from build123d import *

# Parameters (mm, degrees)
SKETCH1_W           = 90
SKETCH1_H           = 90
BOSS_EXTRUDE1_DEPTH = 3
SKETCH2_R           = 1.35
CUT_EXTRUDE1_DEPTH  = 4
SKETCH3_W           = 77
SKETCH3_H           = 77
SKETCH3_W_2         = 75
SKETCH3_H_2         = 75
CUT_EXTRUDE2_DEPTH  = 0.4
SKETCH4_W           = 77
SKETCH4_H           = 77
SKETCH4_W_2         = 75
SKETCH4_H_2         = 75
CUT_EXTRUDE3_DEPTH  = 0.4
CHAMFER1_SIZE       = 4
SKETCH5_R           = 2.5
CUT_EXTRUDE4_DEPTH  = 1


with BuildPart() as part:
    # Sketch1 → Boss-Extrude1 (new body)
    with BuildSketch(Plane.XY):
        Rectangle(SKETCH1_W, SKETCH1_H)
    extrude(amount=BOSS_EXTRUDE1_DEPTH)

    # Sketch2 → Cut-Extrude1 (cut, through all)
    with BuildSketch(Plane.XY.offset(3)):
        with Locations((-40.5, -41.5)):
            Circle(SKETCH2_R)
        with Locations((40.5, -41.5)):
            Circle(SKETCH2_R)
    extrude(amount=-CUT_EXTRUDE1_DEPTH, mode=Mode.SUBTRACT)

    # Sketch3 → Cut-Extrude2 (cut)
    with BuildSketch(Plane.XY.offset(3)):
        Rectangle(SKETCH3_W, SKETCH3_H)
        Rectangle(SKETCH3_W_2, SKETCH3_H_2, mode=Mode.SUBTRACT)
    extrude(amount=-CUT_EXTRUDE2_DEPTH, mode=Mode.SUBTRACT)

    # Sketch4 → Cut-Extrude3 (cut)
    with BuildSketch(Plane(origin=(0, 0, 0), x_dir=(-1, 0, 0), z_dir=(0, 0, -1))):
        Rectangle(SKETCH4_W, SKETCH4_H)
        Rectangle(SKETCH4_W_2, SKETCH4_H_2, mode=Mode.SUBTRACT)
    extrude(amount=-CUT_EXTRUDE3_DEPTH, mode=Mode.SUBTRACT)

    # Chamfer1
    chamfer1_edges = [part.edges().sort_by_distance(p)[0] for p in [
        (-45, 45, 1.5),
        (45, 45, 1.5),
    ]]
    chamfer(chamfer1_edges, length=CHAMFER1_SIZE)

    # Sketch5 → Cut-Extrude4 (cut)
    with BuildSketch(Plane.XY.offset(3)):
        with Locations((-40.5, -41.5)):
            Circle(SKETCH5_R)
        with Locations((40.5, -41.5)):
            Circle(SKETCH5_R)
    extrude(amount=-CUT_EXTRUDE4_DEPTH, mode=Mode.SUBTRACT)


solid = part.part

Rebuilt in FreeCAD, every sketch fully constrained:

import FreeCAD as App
import Part
import Sketcher
from FreeCAD import Vector
Q = App.Units.Quantity


def edges_at(feature, points):
    """Names of the edges that pass closest to the given points."""
    edges = feature.Shape.Edges
    near = lambda p: min(range(len(edges)), key=lambda i: edges[i].distToShape(Part.Vertex(*p))[0])
    return sorted({f"Edge{near(p) + 1}" for p in points})

doc = App.newDocument("Part")
body = doc.addObject("PartDesign::Body", "Body")

# Sketch on XY plane
sketch1 = body.newObject("Sketcher::SketchObject", "Sketch")
sketch1.AttachmentSupport = (doc.getObject("XY_Plane"), [""])
sketch1.MapMode = "FlatFace"
sketch1.addGeometry([
    Part.LineSegment(Vector(-45, 45, 0), Vector(-45, -45, 0)),
    Part.LineSegment(Vector(-45, -45, 0), Vector(45, -45, 0)),
    Part.LineSegment(Vector(45, -45, 0), Vector(45, 45, 0)),
    Part.LineSegment(Vector(45, 45, 0), Vector(-45, 45, 0)),
], False)
sketch1.addConstraint([
    Sketcher.Constraint("Coincident", 0, 2, 1, 1),
    Sketcher.Constraint("Coincident", 1, 2, 2, 1),
    Sketcher.Constraint("Coincident", 2, 2, 3, 1),
    Sketcher.Constraint("Coincident", 3, 2, 0, 1),
    Sketcher.Constraint("Vertical", 0),
    Sketcher.Constraint("Horizontal", 1),
    Sketcher.Constraint("Vertical", 2),
    Sketcher.Constraint("Horizontal", 3),
    Sketcher.Constraint("Symmetric", 0, 2, 2, 2, -1, 1),
    Sketcher.Constraint("Equal", 3, 0),
    Sketcher.Constraint("DistanceX", 1, 1, 1, 2, Q("90 mm")),
])
pad1 = body.newObject("PartDesign::Pad", "Pad")
pad1.Profile = sketch1
pad1.Length = 3

# Sketch on XY plane
sketch2 = body.newObject("Sketcher::SketchObject", "Sketch001")
sketch2.AttachmentSupport = (doc.getObject("XY_Plane"), [""])
sketch2.MapMode = "FlatFace"
sketch2.AttachmentOffset = App.Placement(Vector(0, 0, 3), App.Rotation())
sketch2.addGeometry([
    Part.Circle(Vector(-40.5, -41.5, 0), Vector(0, 0, 1), 1.4),
    Part.Circle(Vector(40.5, -41.5, 0), Vector(0, 0, 1), 1.4),
], False)
sketch2.addConstraint([
    Sketcher.Constraint("Equal", 0, 1),
    Sketcher.Constraint("Symmetric", 0, 3, 1, 3, -2),
    Sketcher.Constraint("Diameter", 0, Q("2.7 mm")),
    Sketcher.Constraint("DistanceX", 0, 3, 1, 3, Q("81 mm")),
    Sketcher.Constraint("DistanceY", 0, 3, -1, 1, Q("41.5 mm")),
])
pocket1 = body.newObject("PartDesign::Pocket", "Pocket")
pocket1.Profile = sketch2
pocket1.Type = "ThroughAll"

# Sketch on XY plane
sketch3 = body.newObject("Sketcher::SketchObject", "Sketch002")
sketch3.AttachmentSupport = (doc.getObject("XY_Plane"), [""])
sketch3.MapMode = "FlatFace"
sketch3.AttachmentOffset = App.Placement(Vector(0, 0, 3), App.Rotation())
sketch3.addGeometry([
    Part.LineSegment(Vector(-38, 38, 0), Vector(-38, -38, 0)),  # 0
    Part.LineSegment(Vector(-38, -38, 0), Vector(38, -38, 0)),  # 1
    Part.LineSegment(Vector(38, -38, 0), Vector(38, 38, 0)),  # 2
    Part.LineSegment(Vector(38, 38, 0), Vector(-38, 38, 0)),  # 3
    Part.LineSegment(Vector(38, -38, 0), Vector(-38, -38, 0)),  # 4
    Part.LineSegment(Vector(-38, -38, 0), Vector(-38, 38, 0)),  # 5
    Part.LineSegment(Vector(-38, 38, 0), Vector(38, 38, 0)),  # 6
    Part.LineSegment(Vector(38, 38, 0), Vector(38, -38, 0)),  # 7
], False)
sketch3.addConstraint([
    Sketcher.Constraint("Coincident", 0, 2, 1, 1),
    Sketcher.Constraint("Coincident", 1, 2, 2, 1),
    Sketcher.Constraint("Coincident", 2, 2, 3, 1),
    Sketcher.Constraint("Coincident", 3, 2, 0, 1),
    Sketcher.Constraint("Coincident", 4, 2, 5, 1),
    Sketcher.Constraint("Coincident", 5, 2, 6, 1),
    Sketcher.Constraint("Coincident", 6, 2, 7, 1),
    Sketcher.Constraint("Coincident", 7, 2, 4, 1),
    Sketcher.Constraint("Vertical", 0),
    Sketcher.Constraint("Horizontal", 1),
    Sketcher.Constraint("Vertical", 2),
    Sketcher.Constraint("Horizontal", 3),
    Sketcher.Constraint("Horizontal", 4),
    Sketcher.Constraint("Vertical", 5),
    Sketcher.Constraint("Horizontal", 6),
    Sketcher.Constraint("Vertical", 7),
    Sketcher.Constraint("Symmetric", 0, 2, 2, 2, -1, 1),
    Sketcher.Constraint("Symmetric", 4, 2, 6, 2, -1, 1),
    Sketcher.Constraint("Equal", 3, 0),
    Sketcher.Constraint("Equal", 6, 5),
    Sketcher.Constraint("DistanceX", 1, 1, 1, 2, Q("77 mm")),
    Sketcher.Constraint("DistanceX", 4, 2, 4, 1, Q("75 mm")),
])
pocket2 = body.newObject("PartDesign::Pocket", "Pocket001")
pocket2.Profile = sketch3
pocket2.Length = 0.4

# Sketch on XY plane
sketch4 = body.newObject("Sketcher::SketchObject", "Sketch003")
sketch4.AttachmentSupport = (doc.getObject("XY_Plane"), [""])
sketch4.MapMode = "FlatFace"
sketch4.addGeometry([
    Part.LineSegment(Vector(38, 38, 0), Vector(38, -38, 0)),  # 0
    Part.LineSegment(Vector(38, -38, 0), Vector(-38, -38, 0)),  # 1
    Part.LineSegment(Vector(-38, -38, 0), Vector(-38, 38, 0)),  # 2
    Part.LineSegment(Vector(-38, 38, 0), Vector(38, 38, 0)),  # 3
    Part.LineSegment(Vector(-38, -38, 0), Vector(38, -38, 0)),  # 4
    Part.LineSegment(Vector(38, -38, 0), Vector(38, 38, 0)),  # 5
    Part.LineSegment(Vector(38, 38, 0), Vector(-38, 38, 0)),  # 6
    Part.LineSegment(Vector(-38, 38, 0), Vector(-38, -38, 0)),  # 7
], False)
sketch4.addConstraint([
    Sketcher.Constraint("Coincident", 0, 2, 1, 1),
    Sketcher.Constraint("Coincident", 1, 2, 2, 1),
    Sketcher.Constraint("Coincident", 2, 2, 3, 1),
    Sketcher.Constraint("Coincident", 3, 2, 0, 1),
    Sketcher.Constraint("Coincident", 4, 2, 5, 1),
    Sketcher.Constraint("Coincident", 5, 2, 6, 1),
    Sketcher.Constraint("Coincident", 6, 2, 7, 1),
    Sketcher.Constraint("Coincident", 7, 2, 4, 1),
    Sketcher.Constraint("Vertical", 0),
    Sketcher.Constraint("Horizontal", 1),
    Sketcher.Constraint("Vertical", 2),
    Sketcher.Constraint("Horizontal", 3),
    Sketcher.Constraint("Horizontal", 4),
    Sketcher.Constraint("Vertical", 5),
    Sketcher.Constraint("Horizontal", 6),
    Sketcher.Constraint("Vertical", 7),
    Sketcher.Constraint("Symmetric", 0, 2, 2, 2, -1, 1),
    Sketcher.Constraint("Symmetric", 4, 2, 6, 2, -1, 1),
    Sketcher.Constraint("Equal", 3, 0),
    Sketcher.Constraint("Equal", 6, 5),
    Sketcher.Constraint("DistanceX", 1, 2, 1, 1, Q("77 mm")),
    Sketcher.Constraint("DistanceX", 4, 1, 4, 2, Q("75 mm")),
])
pocket3 = body.newObject("PartDesign::Pocket", "Pocket002")
pocket3.Profile = sketch4
pocket3.Length = 0.4
pocket3.Reversed = True
doc.recompute()

chamfer = body.newObject("PartDesign::Chamfer", "Chamfer")
chamfer.Base = (pocket3, edges_at(pocket3, [(-45, 45, 1.5), (45, 45, 1.5)]))
chamfer.Size = 4

# Sketch on XY plane
sketch5 = body.newObject("Sketcher::SketchObject", "Sketch004")
sketch5.AttachmentSupport = (doc.getObject("XY_Plane"), [""])
sketch5.MapMode = "FlatFace"
sketch5.AttachmentOffset = App.Placement(Vector(0, 0, 3), App.Rotation())
sketch5.addGeometry([
    Part.Circle(Vector(-40.5, -41.5, 0), Vector(0, 0, 1), 2.5),
    Part.Circle(Vector(40.5, -41.5, 0), Vector(0, 0, 1), 2.5),
], False)
sketch5.addConstraint([
    Sketcher.Constraint("Equal", 0, 1),
    Sketcher.Constraint("Symmetric", 0, 3, 1, 3, -2),
    Sketcher.Constraint("Diameter", 0, Q("5 mm")),
    Sketcher.Constraint("DistanceX", 0, 3, 1, 3, Q("81 mm")),
    Sketcher.Constraint("DistanceY", 0, 3, -1, 1, Q("41.5 mm")),
])
pocket4 = body.newObject("PartDesign::Pocket", "Pocket003")
pocket4.Profile = sketch5
pocket4.Length = 1

doc.recompute()
